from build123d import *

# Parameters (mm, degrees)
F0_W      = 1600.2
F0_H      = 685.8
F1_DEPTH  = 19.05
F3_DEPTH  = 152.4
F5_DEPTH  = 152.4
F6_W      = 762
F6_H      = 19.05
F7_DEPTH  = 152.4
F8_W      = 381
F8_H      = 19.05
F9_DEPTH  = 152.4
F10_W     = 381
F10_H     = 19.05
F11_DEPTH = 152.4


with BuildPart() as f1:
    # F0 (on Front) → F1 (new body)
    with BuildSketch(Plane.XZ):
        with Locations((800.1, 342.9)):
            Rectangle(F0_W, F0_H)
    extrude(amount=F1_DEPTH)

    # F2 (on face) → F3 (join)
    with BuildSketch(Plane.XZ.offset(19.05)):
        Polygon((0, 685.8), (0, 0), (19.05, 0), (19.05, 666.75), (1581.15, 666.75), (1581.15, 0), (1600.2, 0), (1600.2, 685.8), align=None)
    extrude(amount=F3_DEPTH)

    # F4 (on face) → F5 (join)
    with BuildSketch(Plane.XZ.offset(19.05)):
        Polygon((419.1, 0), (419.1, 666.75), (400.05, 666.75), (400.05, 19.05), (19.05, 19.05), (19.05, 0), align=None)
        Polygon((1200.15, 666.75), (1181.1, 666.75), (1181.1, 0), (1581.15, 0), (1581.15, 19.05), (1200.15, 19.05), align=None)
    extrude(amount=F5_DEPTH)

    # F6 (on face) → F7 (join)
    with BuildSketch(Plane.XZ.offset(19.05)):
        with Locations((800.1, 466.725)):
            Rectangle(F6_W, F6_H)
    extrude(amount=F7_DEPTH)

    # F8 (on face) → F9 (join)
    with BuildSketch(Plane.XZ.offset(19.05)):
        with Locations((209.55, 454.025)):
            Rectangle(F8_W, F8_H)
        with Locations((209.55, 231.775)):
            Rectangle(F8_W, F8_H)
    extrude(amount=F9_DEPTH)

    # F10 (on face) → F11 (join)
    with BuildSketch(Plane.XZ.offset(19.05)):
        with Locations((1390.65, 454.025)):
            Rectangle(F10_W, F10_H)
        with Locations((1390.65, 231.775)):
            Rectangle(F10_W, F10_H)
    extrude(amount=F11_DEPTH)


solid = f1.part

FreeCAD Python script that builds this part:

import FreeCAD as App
import Part
import Sketcher
Q = App.Units.Quantity

doc = App.newDocument("Part")
params = doc.addObject("Spreadsheet::Sheet", "Params")
for row, (alias, value) in enumerate([
    ("sketch1_width", "63 in"),
    ("sketch1_height", "27 in"),
    ("pad1_length", "0.75 in"),
    ("sketch2_width", "63 in"),
    ("sketch2_height", "27 in"),
    ("sketch2_width2", "61.5 in"),
    ("sketch2_height2", "26.25 in"),
    ("pad2_length", "6 in"),
    ("sketch3_width", "15 in"),
    ("sketch3_height", "25.5 in"),
    ("sketch3_width2", "0.75 in"),
    ("pad3_length", "6 in"),
    ("sketch4_width", "30 in"),
    ("sketch4_height", "0.75 in"),
    ("pad4_length", "6 in"),
    ("sketch5_width", "15 in"),
    ("sketch5_height", "0.75 in"),
    ("pad5_length", "6 in"),
    ("sketch6_width", "15 in"),
    ("sketch6_height", "0.75 in"),
    ("pad6_length", "6 in"),
], start=1):
    params.set(f"A{row}", alias)
    params.set(f"B{row}", "=" + value)
    params.setAlias(f"B{row}", alias)

body = doc.addObject("PartDesign::Body", "Body")

# Sketch on XZ plane
sketch1 = body.newObject("Sketcher::SketchObject", "Sketch")
sketch1.AttachmentSupport = (doc.getObject("XZ_Plane"), [""])
sketch1.MapMode = "FlatFace"
sketch1.addGeometry([
    Part.LineSegment(App.Vector(0, 686, 0), App.Vector(0, 0, 0)),
    Part.LineSegment(App.Vector(0, 0, 0), App.Vector(1600, 0, 0)),
    Part.LineSegment(App.Vector(1600, 0, 0), App.Vector(1600, 686, 0)),
    Part.LineSegment(App.Vector(1600, 686, 0), App.Vector(0, 686, 0)),
], False)
sketch1.addConstraint([
    Sketcher.Constraint("Coincident", 0, 2, 1, 1),
    Sketcher.Constraint("Coincident", 1, 2, 2, 1),
    Sketcher.Constraint("Coincident", 2, 2, 3, 1),
    Sketcher.Constraint("Coincident", 3, 2, 0, 1),
    Sketcher.Constraint("Vertical", 0),
    Sketcher.Constraint("Horizontal", 1),
    Sketcher.Constraint("Vertical", 2),
    Sketcher.Constraint("Horizontal", 3),
    Sketcher.Constraint("Coincident", 0, 2, -1, 1),
    Sketcher.Constraint("DistanceX", 1, 1, 1, 2, Q("63 in")),
    Sketcher.Constraint("DistanceY", 0, 2, 0, 1, Q("27 in")),
])
sketch1.setExpression("Constraints[9]", "Params.sketch1_width")
sketch1.setExpression("Constraints[10]", "Params.sketch1_height")
pad1 = body.newObject("PartDesign::Pad", "Pad")
pad1.Profile = sketch1
pad1.setExpression("Length", "Params.pad1_length")

# Sketch on XZ plane
sketch2 = body.newObject("Sketcher::SketchObject", "Sketch001")
sketch2.AttachmentSupport = (doc.getObject("XZ_Plane"), [""])
sketch2.MapMode = "FlatFace"
sketch2.AttachmentOffset = App.Placement(App.Vector(0, 0, 0.75 * 25.4), App.Rotation())
sketch2.addGeometry([
    Part.LineSegment(App.Vector(0, 686, 0), App.Vector(0, 0, 0)),  # 0
    Part.LineSegment(App.Vector(0, 0, 0), App.Vector(19, 0, 0)),  # 1
    Part.LineSegment(App.Vector(19, 0, 0), App.Vector(19, 667, 0)),  # 2
    Part.LineSegment(App.Vector(19, 667, 0), App.Vector(1581, 667, 0)),  # 3
    Part.LineSegment(App.Vector(1581, 667, 0), App.Vector(1581, 0, 0)),  # 4
    Part.LineSegment(App.Vector(1581, 0, 0), App.Vector(1600, 0, 0)),  # 5
    Part.LineSegment(App.Vector(1600, 0, 0), App.Vector(1600, 686, 0)),  # 6
    Part.LineSegment(App.Vector(1600, 686, 0), App.Vector(0, 686, 0)),  # 7
], False)
sketch2.addConstraint([
    Sketcher.Constraint("Coincident", 0, 2, 1, 1),
    Sketcher.Constraint("Coincident", 1, 2, 2, 1),
    Sketcher.Constraint("Coincident", 2, 2, 3, 1),
    Sketcher.Constraint("Coincident", 3, 2, 4, 1),
    Sketcher.Constraint("Coincident", 4, 2, 5, 1),
    Sketcher.Constraint("Coincident", 5, 2, 6, 1),
    Sketcher.Constraint("Coincident", 6, 2, 7, 1),
    Sketcher.Constraint("Coincident", 7, 2, 0, 1),
    Sketcher.Constraint("Vertical", 0),
    Sketcher.Constraint("Horizontal", 1),
    Sketcher.Constraint("Vertical", 2),
    Sketcher.Constraint("Horizontal", 3),
    Sketcher.Constraint("Vertical", 4),
    Sketcher.Constraint("Horizontal", 5),
    Sketcher.Constraint("Vertical", 6),
    Sketcher.Constraint("Horizontal", 7),
    Sketcher.Constraint("Coincident", 0, 2, -1, 1),
    Sketcher.Constraint("PointOnObject", 4, 2, -1),
    Sketcher.Constraint("Equal", 1, 5),
    Sketcher.Constraint("DistanceX", 7, 2, 7, 1, Q("63 in")),
    Sketcher.Constraint("DistanceY", 0, 2, 0, 1, Q("27 in")),
    Sketcher.Constraint("DistanceX", 3, 1, 3, 2, Q("61.5 in")),
    Sketcher.Constraint("DistanceY", 2, 1, 2, 2, Q("26.25 in")),
])
sketch2.setExpression("Constraints[19]", "Params.sketch2_width")
sketch2.setExpression("Constraints[20]", "Params.sketch2_height")
sketch2.setExpression("Constraints[21]", "Params.sketch2_width2")
sketch2.setExpression("Constraints[22]", "Params.sketch2_height2")
pad2 = body.newObject("PartDesign::Pad", "Pad001")
pad2.Profile = sketch2
pad2.setExpression("Length", "Params.pad2_length")

# Sketch on XZ plane
sketch3 = body.newObject("Sketcher::SketchObject", "Sketch002")
sketch3.AttachmentSupport = (doc.getObject("XZ_Plane"), [""])
sketch3.MapMode = "FlatFace"
sketch3.AttachmentOffset = App.Placement(App.Vector(0, 0, 0.75 * 25.4), App.Rotation())
sketch3.addGeometry([
    Part.LineSegment(App.Vector(419, 0, 0), App.Vector(419, 667, 0)),  # 0
    Part.LineSegment(App.Vector(419, 667, 0), App.Vector(400, 667, 0)),  # 1
    Part.LineSegment(App.Vector(400, 667, 0), App.Vector(400, 19, 0)),  # 2
    Part.LineSegment(App.Vector(400, 19, 0), App.Vector(19, 19, 0)),  # 3
    Part.LineSegment(App.Vector(19, 19, 0), App.Vector(19, 0, 0)),  # 4
    Part.LineSegment(App.Vector(19, 0, 0), App.Vector(419, 0, 0)),  # 5
    Part.LineSegment(App.Vector(1200, 667, 0), App.Vector(1181, 667, 0)),  # 6
    Part.LineSegment(App.Vector(1181, 667, 0), App.Vector(1181, 0, 0)),  # 7
    Part.LineSegment(App.Vector(1181, 0, 0), App.Vector(1581, 0, 0)),  # 8
    Part.LineSegment(App.Vector(1581, 0, 0), App.Vector(1581, 19, 0)),  # 9
    Part.LineSegment(App.Vector(1581, 19, 0), App.Vector(1200, 19, 0)),  # 10
    Part.LineSegment(App.Vector(1200, 19, 0), App.Vector(1200, 667, 0)),  # 11
], False)
sketch3.addConstraint([
    Sketcher.Constraint("Coincident", 0, 2, 1, 1),
    Sketcher.Constraint("Coincident", 1, 2, 2, 1),
    Sketcher.Constraint("Coincident", 2, 2, 3, 1),
    Sketcher.Constraint("Coincident", 3, 2, 4, 1),
    Sketcher.Constraint("Coincident", 4, 2, 5, 1),
    Sketcher.Constraint("Coincident", 5, 2, 0, 1),
    Sketcher.Constraint("Coincident", 6, 2, 7, 1),
    Sketcher.Constraint("Coincident", 7, 2, 8, 1),
    Sketcher.Constraint("Coincident", 8, 2, 9, 1),
    Sketcher.Constraint("Coincident", 9, 2, 10, 1),
    Sketcher.Constraint("Coincident", 10, 2, 11, 1),
    Sketcher.Constraint("Coincident", 11, 2, 6, 1),
    Sketcher.Constraint("Vertical", 0),
    Sketcher.Constraint("Horizontal", 1),
    Sketcher.Constraint("Vertical", 2),
    Sketcher.Constraint("Horizontal", 3),
    Sketcher.Constraint("Vertical", 4),
    Sketcher.Constraint("Horizontal", 5),
    Sketcher.Constraint("Horizontal", 6),
    Sketcher.Constraint("Vertical", 7),
    Sketcher.Constraint("Horizontal", 8),
    Sketcher.Constraint("Vertical", 9),
    Sketcher.Constraint("Horizontal", 10),
    Sketcher.Constraint("Vertical", 11),
    Sketcher.Constraint("PointOnObject", 4, 2, -1),
    Sketcher.Constraint("PointOnObject", 7, 2, -1),
    Sketcher.Constraint("Horizontal", 1, 2, 6, 2),
    Sketcher.Constraint("Horizontal", 3, 2, 9, 2),
    Sketcher.Constraint("Equal", 1, 6),
    Sketcher.Constraint("Equal", 5, 8),
    Sketcher.Constraint("Equal", 6, 4),
    Sketcher.Constraint("DistanceX", 3, 2, 3, 1, Q("15 in")),
    Sketcher.Constraint("DistanceY", 2, 2, 2, 1, Q("25.5 in")),
    Sketcher.Constraint("DistanceX", 0, 2, 6, 2, Q("30 in")),
    Sketcher.Constraint("DistanceX", 1, 2, 1, 1, Q("0.75 in")),
    Sketcher.Constraint("DistanceX", -1, 1, 0, 2, Q("16.5 in")),
])
sketch3.setExpression("Constraints[31]", "Params.sketch3_width")
sketch3.setExpression("Constraints[32]", "Params.sketch3_height")
sketch3.setExpression("Constraints[34]", "Params.sketch3_width2")
pad3 = body.newObject("PartDesign::Pad", "Pad002")
pad3.Profile = sketch3
pad3.setExpression("Length", "Params.pad3_length")

# Sketch on XZ plane
sketch4 = body.newObject("Sketcher::SketchObject", "Sketch003")
sketch4.AttachmentSupport = (doc.getObject("XZ_Plane"), [""])
sketch4.MapMode = "FlatFace"
sketch4.AttachmentOffset = App.Placement(App.Vector(0, 0, 0.75 * 25.4), App.Rotation())
sketch4.addGeometry([
    Part.LineSegment(App.Vector(419, 476, 0), App.Vector(419, 457, 0)),
    Part.LineSegment(App.Vector(419, 457, 0), App.Vector(1181, 457, 0)),
    Part.LineSegment(App.Vector(1181, 457, 0), App.Vector(1181, 476, 0)),
    Part.LineSegment(App.Vector(1181, 476, 0), App.Vector(419, 476, 0)),
], False)
sketch4.addConstraint([
    Sketcher.Constraint("Coincident", 0, 2, 1, 1),
    Sketcher.Constraint("Coincident", 1, 2, 2, 1),
    Sketcher.Constraint("Coincident", 2, 2, 3, 1),
    Sketcher.Constraint("Coincident", 3, 2, 0, 1),
    Sketcher.Constraint("Vertical", 0),
    Sketcher.Constraint("Horizontal", 1),
    Sketcher.Constraint("Vertical", 2),
    Sketcher.Constraint("Horizontal", 3),
    Sketcher.Constraint("DistanceX", 1, 1, 1, 2, Q("30 in")),
    Sketcher.Constraint("DistanceY", -1, 1, 0, 2, Q("18 in")),
    Sketcher.Constraint("DistanceY", 0, 2, 0, 1, Q("0.75 in")),
    Sketcher.Constraint("DistanceX", -1, 1, 0, 2, Q("16.5 in")),
])
sketch4.setExpression("Constraints[8]", "Params.sketch4_width")
sketch4.setExpression("Constraints[10]", "Params.sketch4_height")
pad4 = body.newObject("PartDesign::Pad", "Pad003")
pad4.Profile = sketch4
pad4.setExpression("Length", "Params.pad4_length")

# Sketch on XZ plane
sketch5 = body.newObject("Sketcher::SketchObject", "Sketch004")
sketch5.AttachmentSupport = (doc.getObject("XZ_Plane"), [""])
sketch5.MapMode = "FlatFace"
sketch5.AttachmentOffset = App.Placement(App.Vector(0, 0, 0.75 * 25.4), App.Rotation())
sketch5.addGeometry([
    Part.LineSegment(App.Vector(19, 464, 0), App.Vector(19, 444, 0)),  # 0
    Part.LineSegment(App.Vector(19, 444, 0), App.Vector(400, 444, 0)),  # 1
    Part.LineSegment(App.Vector(400, 444, 0), App.Vector(400, 464, 0)),  # 2
    Part.LineSegment(App.Vector(400, 464, 0), App.Vector(19, 464, 0)),  # 3
    Part.LineSegment(App.Vector(19, 241, 0), App.Vector(19, 222, 0)),  # 4
    Part.LineSegment(App.Vector(19, 222, 0), App.Vector(400, 222, 0)),  # 5
    Part.LineSegment(App.Vector(400, 222, 0), App.Vector(400, 241, 0)),  # 6
    Part.LineSegment(App.Vector(400, 241, 0), App.Vector(19, 241, 0)),  # 7
], False)
sketch5.addConstraint([
    Sketcher.Constraint("Coincident", 0, 2, 1, 1),
    Sketcher.Constraint("Coincident", 1, 2, 2, 1),
    Sketcher.Constraint("Coincident", 2, 2, 3, 1),
    Sketcher.Constraint("Coincident", 3, 2, 0, 1),
    Sketcher.Constraint("Coincident", 4, 2, 5, 1),
    Sketcher.Constraint("Coincident", 5, 2, 6, 1),
    Sketcher.Constraint("Coincident", 6, 2, 7, 1),
    Sketcher.Constraint("Coincident", 7, 2, 4, 1),
    Sketcher.Constraint("Vertical", 0),
    Sketcher.Constraint("Horizontal", 1),
    Sketcher.Constraint("Vertical", 2),
    Sketcher.Constraint("Horizontal", 3),
    Sketcher.Constraint("Vertical", 4),
    Sketcher.Constraint("Horizontal", 5),
    Sketcher.Constraint("Vertical", 6),
    Sketcher.Constraint("Horizontal", 7),
    Sketcher.Constraint("Vertical", 3, 2, 4, 2),
    Sketcher.Constraint("Vertical", 2, 2, 5, 2),
    Sketcher.Constraint("Equal", 2, 4),
    Sketcher.Constraint("DistanceX", 1, 1, 1, 2, Q("15 in")),
    Sketcher.Constraint("DistanceY", 6, 2, 1, 2, Q("8 in")),
    Sketcher.Constraint("DistanceY", 0, 2, 0, 1, Q("0.75 in")),
    Sketcher.Constraint("DistanceY", -1, 1, 0, 2, Q("17.5 in")),
    Sketcher.Constraint("DistanceX", -1, 1, 0, 2, Q("0.75 in")),
])
sketch5.setExpression("Constraints[19]", "Params.sketch5_width")
sketch5.setExpression("Constraints[21]", "Params.sketch5_height")
pad5 = body.newObject("PartDesign::Pad", "Pad004")
pad5.Profile = sketch5
pad5.setExpression("Length", "Params.pad5_length")

# Sketch on XZ plane
sketch6 = body.newObject("Sketcher::SketchObject", "Sketch005")
sketch6.AttachmentSupport = (doc.getObject("XZ_Plane"), [""])
sketch6.MapMode = "FlatFace"
sketch6.AttachmentOffset = App.Placement(App.Vector(0, 0, 0.75 * 25.4), App.Rotation())
sketch6.addGeometry([
    Part.LineSegment(App.Vector(1200, 464, 0), App.Vector(1200, 444, 0)),  # 0
    Part.LineSegment(App.Vector(1200, 444, 0), App.Vector(1581, 444, 0)),  # 1
    Part.LineSegment(App.Vector(1581, 444, 0), App.Vector(1581, 464, 0)),  # 2
    Part.LineSegment(App.Vector(1581, 464, 0), App.Vector(1200, 464, 0)),  # 3
    Part.LineSegment(App.Vector(1200, 241, 0), App.Vector(1200, 222, 0)),  # 4
    Part.LineSegment(App.Vector(1200, 222, 0), App.Vector(1581, 222, 0)),  # 5
    Part.LineSegment(App.Vector(1581, 222, 0), App.Vector(1581, 241, 0)),  # 6
    Part.LineSegment(App.Vector(1581, 241, 0), App.Vector(1200, 241, 0)),  # 7
], False)
sketch6.addConstraint([
    Sketcher.Constraint("Coincident", 0, 2, 1, 1),
    Sketcher.Constraint("Coincident", 1, 2, 2, 1),
    Sketcher.Constraint("Coincident", 2, 2, 3, 1),
    Sketcher.Constraint("Coincident", 3, 2, 0, 1),
    Sketcher.Constraint("Coincident", 4, 2, 5, 1),
    Sketcher.Constraint("Coincident", 5, 2, 6, 1),
    Sketcher.Constraint("Coincident", 6, 2, 7, 1),
    Sketcher.Constraint("Coincident", 7, 2, 4, 1),
    Sketcher.Constraint("Vertical", 0),
    Sketcher.Constraint("Horizontal", 1),
    Sketcher.Constraint("Vertical", 2),
    Sketcher.Constraint("Horizontal", 3),
    Sketcher.Constraint("Vertical", 4),
    Sketcher.Constraint("Horizontal", 5),
    Sketcher.Constraint("Vertical", 6),
    Sketcher.Constraint("Horizontal", 7),
    Sketcher.Constraint("Vertical", 3, 2, 4, 2),
    Sketcher.Constraint("Vertical", 2, 2, 5, 2),
    Sketcher.Constraint("Equal", 2, 4),
    Sketcher.Constraint("DistanceX", 1, 1, 1, 2, Q("15 in")),
    Sketcher.Constraint("DistanceY", 6, 2, 1, 2, Q("8 in")),
    Sketcher.Constraint("DistanceY", 0, 2, 0, 1, Q("0.75 in")),
    Sketcher.Constraint("DistanceY", -1, 1, 0, 2, Q("17.5 in")),
    Sketcher.Constraint("DistanceX", -1, 1, 0, 2, Q("47.25 in")),
])
sketch6.setExpression("Constraints[19]", "Params.sketch6_width")
sketch6.setExpression("Constraints[21]", "Params.sketch6_height")
pad6 = body.newObject("PartDesign::Pad", "Pad005")
pad6.Profile = sketch6
pad6.setExpression("Length", "Params.pad6_length")

doc.recompute()
